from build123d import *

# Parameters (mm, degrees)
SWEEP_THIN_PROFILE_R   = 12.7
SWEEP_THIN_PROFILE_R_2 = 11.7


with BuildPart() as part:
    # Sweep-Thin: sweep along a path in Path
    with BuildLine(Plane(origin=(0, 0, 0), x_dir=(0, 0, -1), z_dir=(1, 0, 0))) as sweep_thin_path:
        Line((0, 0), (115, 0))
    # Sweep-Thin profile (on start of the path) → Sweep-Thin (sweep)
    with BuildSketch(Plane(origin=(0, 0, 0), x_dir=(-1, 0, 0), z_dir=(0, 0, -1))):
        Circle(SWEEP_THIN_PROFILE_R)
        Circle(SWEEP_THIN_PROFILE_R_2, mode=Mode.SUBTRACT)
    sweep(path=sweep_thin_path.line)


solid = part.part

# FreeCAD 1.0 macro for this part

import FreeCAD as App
import Part
import Sketcher

V = App.Vector
Q = App.Units.Quantity

doc = App.newDocument("Part")
body = doc.addObject("PartDesign::Body", "Body")

# Sketch on XY plane
sketch1 = body.newObject("Sketcher::SketchObject", "Sketch")
sketch1.AttachmentSupport = (doc.getObject("XY_Plane"), [""])
sketch1.MapMode = "FlatFace"
sketch1.addGeometry(Part.Circle(V(0, 0, 0), V(0, 0, 1), 12.7), False)
sketch1.addGeometry(Part.Circle(V(0, 0, 0), V(0, 0, 1), 11.7), False)
sketch1.addConstraint(Sketcher.Constraint("Coincident", 0, 3, -1, 1))
sketch1.addConstraint(Sketcher.Constraint("Coincident", 1, 3, -1, 1))
sketch1.addConstraint(Sketcher.Constraint("Diameter", 0, Q("25.4 mm")))
sketch1.addConstraint(Sketcher.Constraint("Diameter", 1, Q("23.4 mm")))

# Sketch on XZ plane
sketch2 = body.newObject("Sketcher::SketchObject", "Sketch001")
sketch2.AttachmentSupport = (doc.getObject("XZ_Plane"), [""])
sketch2.MapMode = "FlatFace"
sketch2.addGeometry(Part.LineSegment(V(0, 0, 0), V(0, -115, 0)), False)
sketch2.addConstraint(Sketcher.Constraint("Vertical", 0))
sketch2.addConstraint(Sketcher.Constraint("Coincident", 0, 1, -1, 1))
sketch2.addConstraint(Sketcher.Constraint("DistanceY", 0, 2, 0, 1, Q("115 mm")))
doc.recompute()

additivepipe = body.newObject("PartDesign::AdditivePipe", "AdditivePipe")
additivepipe.Profile = sketch1
additivepipe.Spine = (sketch2, ["Edge1"])

doc.recompute()
